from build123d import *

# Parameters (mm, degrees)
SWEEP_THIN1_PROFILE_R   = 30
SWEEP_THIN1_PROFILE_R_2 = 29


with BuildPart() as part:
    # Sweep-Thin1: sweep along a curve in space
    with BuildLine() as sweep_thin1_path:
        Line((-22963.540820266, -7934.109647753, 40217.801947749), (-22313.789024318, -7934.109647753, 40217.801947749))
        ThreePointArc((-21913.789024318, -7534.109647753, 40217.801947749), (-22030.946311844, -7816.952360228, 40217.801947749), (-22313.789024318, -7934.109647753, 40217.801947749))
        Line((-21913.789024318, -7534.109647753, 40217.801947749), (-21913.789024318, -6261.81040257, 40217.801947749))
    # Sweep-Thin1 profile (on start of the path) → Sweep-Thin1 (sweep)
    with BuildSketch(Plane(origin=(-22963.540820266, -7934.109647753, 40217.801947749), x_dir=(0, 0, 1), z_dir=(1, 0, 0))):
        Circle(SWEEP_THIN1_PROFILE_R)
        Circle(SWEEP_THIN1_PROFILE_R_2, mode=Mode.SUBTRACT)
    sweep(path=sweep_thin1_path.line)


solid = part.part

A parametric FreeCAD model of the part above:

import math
import FreeCAD as App
import Part
import Sketcher

V = App.Vector

doc = App.newDocument("Part")
body = doc.addObject("PartDesign::Body", "Body")

# Sketch on YZ plane
sketch1 = body.newObject("Sketcher::SketchObject", "Sketch")
sketch1.AttachmentSupport = (doc.getObject("YZ_Plane"), [""])
sketch1.MapMode = "FlatFace"
sketch1.AttachmentOffset = App.Placement(V(0, 0, -22963.54082), App.Rotation())
sketch1.addGeometry(Part.Circle(V(-7934, 40218, 0), V(0, 0, 1), 30), False)
sketch1.addGeometry(Part.Circle(V(-7934, 40218, 0), V(0, 0, 1), 29), False)
sketch1.addConstraint(Sketcher.Constraint("Coincident", 1, 3, 0, 3))
sketch1.addConstraint(Sketcher.Constraint("Diameter", 0, 60.0))
sketch1.addConstraint(Sketcher.Constraint("Diameter", 1, 58.0))
sketch1.addConstraint(Sketcher.Constraint("DistanceX", 0, 3, -1, 1, 7934.109648))
sketch1.addConstraint(Sketcher.Constraint("DistanceY", -1, 1, 0, 3, 40217.801948))

# Sketch on XY plane
sketch2 = body.newObject("Sketcher::SketchObject", "Sketch001")
sketch2.AttachmentSupport = (doc.getObject("XY_Plane"), [""])
sketch2.MapMode = "FlatFace"
sketch2.AttachmentOffset = App.Placement(V(0, 0, 40217.801948), App.Rotation())
sketch2.addGeometry(Part.LineSegment(V(-22964, -7934, 0), V(-22314, -7934, 0)), False)
sketch2.addGeometry(Part.ArcOfCircle(Part.Circle(V(-22314, -7534, 0), V(0, 0, 1), 400), math.radians(-90), math.radians(0)), False)
sketch2.addGeometry(Part.LineSegment(V(-21914, -7534, 0), V(-21914, -6262, 0)), False)
sketch2.addConstraint(Sketcher.Constraint("Tangent", 0, 2, 1, 1))
sketch2.addConstraint(Sketcher.Constraint("Tangent", 1, 2, 2, 1))
sketch2.addConstraint(Sketcher.Constraint("Horizontal", 0))
sketch2.addConstraint(Sketcher.Constraint("Vertical", 2))
sketch2.addConstraint(Sketcher.Constraint("Radius", 1, 400.0))
sketch2.addConstraint(Sketcher.Constraint("DistanceX", 0, 1, 0, 2, 649.751796))
sketch2.addConstraint(Sketcher.Constraint("DistanceY", 2, 1, 2, 2, 1272.299245))
sketch2.addConstraint(Sketcher.Constraint("DistanceX", 0, 1, -1, 1, 22963.54082))
sketch2.addConstraint(Sketcher.Constraint("DistanceY", 1, 3, -1, 1, 7534.109648))
doc.recompute()

additivepipe = body.newObject("PartDesign::AdditivePipe", "AdditivePipe")
additivepipe.Profile = sketch1
additivepipe.Spine = (sketch2, ["Edge1", "Edge2", "Edge3"])

doc.recompute()
